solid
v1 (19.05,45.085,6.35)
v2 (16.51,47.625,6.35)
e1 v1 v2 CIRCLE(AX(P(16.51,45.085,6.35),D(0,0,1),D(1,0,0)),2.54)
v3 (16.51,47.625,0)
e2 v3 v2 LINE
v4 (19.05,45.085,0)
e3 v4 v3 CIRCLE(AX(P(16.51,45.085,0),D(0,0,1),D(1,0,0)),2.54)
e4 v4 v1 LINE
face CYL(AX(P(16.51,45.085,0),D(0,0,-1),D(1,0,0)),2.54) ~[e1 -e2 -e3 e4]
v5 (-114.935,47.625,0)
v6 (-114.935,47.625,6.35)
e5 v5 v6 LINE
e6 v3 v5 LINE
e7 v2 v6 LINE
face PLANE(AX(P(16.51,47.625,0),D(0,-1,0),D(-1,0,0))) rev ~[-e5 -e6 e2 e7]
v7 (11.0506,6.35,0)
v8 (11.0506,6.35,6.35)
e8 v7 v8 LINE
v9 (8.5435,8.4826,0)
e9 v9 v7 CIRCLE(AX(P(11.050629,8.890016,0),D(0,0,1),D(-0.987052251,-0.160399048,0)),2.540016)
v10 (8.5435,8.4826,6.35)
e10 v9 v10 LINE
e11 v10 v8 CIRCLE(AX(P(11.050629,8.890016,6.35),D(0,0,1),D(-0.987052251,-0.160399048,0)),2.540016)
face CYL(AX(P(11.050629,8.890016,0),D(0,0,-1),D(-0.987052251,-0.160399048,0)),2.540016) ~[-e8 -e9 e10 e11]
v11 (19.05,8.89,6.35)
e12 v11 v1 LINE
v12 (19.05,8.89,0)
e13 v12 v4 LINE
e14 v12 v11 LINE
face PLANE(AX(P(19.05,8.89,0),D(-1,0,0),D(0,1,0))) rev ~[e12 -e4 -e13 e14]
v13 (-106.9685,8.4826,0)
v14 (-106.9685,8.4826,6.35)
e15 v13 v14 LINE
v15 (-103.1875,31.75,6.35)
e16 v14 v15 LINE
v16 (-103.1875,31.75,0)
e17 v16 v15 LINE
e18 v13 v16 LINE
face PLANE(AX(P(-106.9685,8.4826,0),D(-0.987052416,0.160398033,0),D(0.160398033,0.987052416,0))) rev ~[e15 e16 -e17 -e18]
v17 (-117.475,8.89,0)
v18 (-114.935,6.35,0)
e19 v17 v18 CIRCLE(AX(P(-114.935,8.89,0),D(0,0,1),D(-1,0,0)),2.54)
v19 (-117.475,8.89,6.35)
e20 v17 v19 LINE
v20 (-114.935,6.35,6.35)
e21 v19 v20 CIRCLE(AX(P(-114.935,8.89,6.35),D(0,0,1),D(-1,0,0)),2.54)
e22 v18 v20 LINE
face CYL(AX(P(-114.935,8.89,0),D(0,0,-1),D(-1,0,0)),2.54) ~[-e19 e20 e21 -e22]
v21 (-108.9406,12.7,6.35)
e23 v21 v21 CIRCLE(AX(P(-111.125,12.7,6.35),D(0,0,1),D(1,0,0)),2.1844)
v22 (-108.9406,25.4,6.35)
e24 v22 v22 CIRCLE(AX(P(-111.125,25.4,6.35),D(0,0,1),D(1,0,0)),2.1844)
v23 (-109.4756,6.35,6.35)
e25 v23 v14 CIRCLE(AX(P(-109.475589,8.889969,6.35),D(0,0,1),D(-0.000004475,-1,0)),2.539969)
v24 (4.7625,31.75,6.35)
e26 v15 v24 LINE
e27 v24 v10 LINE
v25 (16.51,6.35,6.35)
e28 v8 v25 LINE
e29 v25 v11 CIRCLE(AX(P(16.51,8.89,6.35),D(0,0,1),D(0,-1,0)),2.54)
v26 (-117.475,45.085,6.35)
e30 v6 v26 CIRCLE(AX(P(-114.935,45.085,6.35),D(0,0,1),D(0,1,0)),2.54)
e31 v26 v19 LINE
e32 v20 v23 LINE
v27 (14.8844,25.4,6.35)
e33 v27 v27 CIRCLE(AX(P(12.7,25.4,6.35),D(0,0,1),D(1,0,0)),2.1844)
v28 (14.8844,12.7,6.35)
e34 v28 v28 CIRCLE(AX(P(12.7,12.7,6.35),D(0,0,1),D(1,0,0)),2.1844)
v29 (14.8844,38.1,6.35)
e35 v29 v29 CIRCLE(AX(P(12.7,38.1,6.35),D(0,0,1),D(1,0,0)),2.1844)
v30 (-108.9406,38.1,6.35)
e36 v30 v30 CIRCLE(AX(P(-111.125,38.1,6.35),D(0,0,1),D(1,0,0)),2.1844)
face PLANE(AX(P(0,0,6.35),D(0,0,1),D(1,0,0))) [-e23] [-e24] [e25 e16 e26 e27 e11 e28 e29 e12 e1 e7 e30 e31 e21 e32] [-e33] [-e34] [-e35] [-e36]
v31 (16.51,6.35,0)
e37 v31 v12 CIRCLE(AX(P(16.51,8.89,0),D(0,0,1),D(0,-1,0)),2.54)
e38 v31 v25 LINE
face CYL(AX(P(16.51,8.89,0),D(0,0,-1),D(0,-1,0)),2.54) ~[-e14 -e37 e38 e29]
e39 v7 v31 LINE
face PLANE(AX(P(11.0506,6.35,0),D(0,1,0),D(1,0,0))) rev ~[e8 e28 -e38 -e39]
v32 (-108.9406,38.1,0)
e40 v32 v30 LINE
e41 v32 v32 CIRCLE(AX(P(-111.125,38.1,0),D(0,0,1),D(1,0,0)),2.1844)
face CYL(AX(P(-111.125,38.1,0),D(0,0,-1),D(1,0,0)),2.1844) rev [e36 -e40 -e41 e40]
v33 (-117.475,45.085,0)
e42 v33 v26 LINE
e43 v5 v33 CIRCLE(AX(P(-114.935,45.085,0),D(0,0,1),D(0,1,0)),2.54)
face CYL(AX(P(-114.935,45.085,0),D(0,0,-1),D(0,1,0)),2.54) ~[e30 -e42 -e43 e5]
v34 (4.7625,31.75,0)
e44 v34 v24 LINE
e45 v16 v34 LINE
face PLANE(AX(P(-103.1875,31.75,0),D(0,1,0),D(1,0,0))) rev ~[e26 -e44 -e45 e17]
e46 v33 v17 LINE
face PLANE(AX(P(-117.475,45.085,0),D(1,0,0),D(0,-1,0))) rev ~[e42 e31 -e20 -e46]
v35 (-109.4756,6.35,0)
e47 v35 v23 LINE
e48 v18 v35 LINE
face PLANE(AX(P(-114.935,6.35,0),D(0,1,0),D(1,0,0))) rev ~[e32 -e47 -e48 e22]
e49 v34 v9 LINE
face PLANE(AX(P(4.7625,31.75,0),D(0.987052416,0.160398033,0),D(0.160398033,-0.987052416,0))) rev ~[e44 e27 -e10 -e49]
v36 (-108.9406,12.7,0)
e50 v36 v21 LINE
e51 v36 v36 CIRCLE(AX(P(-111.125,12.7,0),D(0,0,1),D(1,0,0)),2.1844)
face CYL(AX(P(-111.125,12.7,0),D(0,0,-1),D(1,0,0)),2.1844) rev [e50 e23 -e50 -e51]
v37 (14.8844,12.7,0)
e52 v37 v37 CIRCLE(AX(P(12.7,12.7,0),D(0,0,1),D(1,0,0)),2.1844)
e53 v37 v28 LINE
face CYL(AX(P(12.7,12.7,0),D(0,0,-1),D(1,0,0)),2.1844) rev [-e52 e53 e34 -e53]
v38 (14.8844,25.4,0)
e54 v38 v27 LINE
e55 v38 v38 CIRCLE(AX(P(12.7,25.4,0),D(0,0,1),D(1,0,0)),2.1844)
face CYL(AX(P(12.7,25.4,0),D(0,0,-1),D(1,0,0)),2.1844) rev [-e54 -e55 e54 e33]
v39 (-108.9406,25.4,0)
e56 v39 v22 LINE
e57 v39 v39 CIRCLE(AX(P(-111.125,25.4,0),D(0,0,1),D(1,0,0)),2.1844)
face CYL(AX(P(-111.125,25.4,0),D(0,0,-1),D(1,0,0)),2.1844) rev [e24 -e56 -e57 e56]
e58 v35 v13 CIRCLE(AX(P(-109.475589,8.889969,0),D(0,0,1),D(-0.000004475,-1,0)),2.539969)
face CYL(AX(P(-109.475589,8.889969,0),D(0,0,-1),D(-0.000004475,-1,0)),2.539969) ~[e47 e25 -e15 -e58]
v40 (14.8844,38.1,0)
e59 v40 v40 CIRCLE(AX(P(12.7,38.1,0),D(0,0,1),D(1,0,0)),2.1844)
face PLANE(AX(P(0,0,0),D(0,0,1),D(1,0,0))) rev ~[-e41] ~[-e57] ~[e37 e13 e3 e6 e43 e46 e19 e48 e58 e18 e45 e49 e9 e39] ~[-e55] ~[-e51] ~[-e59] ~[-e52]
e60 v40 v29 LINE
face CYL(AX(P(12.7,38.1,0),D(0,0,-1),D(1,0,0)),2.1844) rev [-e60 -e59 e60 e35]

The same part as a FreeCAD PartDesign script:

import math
import FreeCAD as App
import Part
import Sketcher
Q = App.Units.Quantity

doc = App.newDocument("Part")
body = doc.addObject("PartDesign::Body", "Body")

# Sketch on XY plane
sketch1 = body.newObject("Sketcher::SketchObject", "Sketch")
sketch1.AttachmentSupport = (doc.getObject("XY_Plane"), [""])
sketch1.MapMode = "FlatFace"
sketch1.addGeometry([
    Part.ArcOfCircle(Part.Circle(App.Vector(-114.9, 45.1, 0), App.Vector(0, 0, 1), 2.5), math.radians(90), math.radians(180)),  # 0
    Part.LineSegment(App.Vector(-117.5, 45.1, 0), App.Vector(-117.5, 8.9, 0)),  # 1
    Part.ArcOfCircle(Part.Circle(App.Vector(-114.9, 8.9, 0), App.Vector(0, 0, 1), 2.5), math.radians(180), math.radians(270)),  # 2
    Part.LineSegment(App.Vector(-114.9, 6.3, 0), App.Vector(-109.5, 6.3, 0)),  # 3
    Part.ArcOfCircle(Part.Circle(App.Vector(-109.5, 8.9, 0), App.Vector(0, 0, 1), 2.5), math.radians(-90), math.radians(-9)),  # 4
    Part.LineSegment(App.Vector(-107, 8.5, 0), App.Vector(-103.2, 31.8, 0)),  # 5
    Part.LineSegment(App.Vector(-103.2, 31.8, 0), App.Vector(4.8, 31.8, 0)),  # 6
    Part.LineSegment(App.Vector(4.8, 31.8, 0), App.Vector(8.5, 8.5, 0)),  # 7
    Part.ArcOfCircle(Part.Circle(App.Vector(11.1, 8.9, 0), App.Vector(0, 0, 1), 2.5), math.radians(-171), math.radians(-90)),  # 8
    Part.LineSegment(App.Vector(11.1, 6.3, 0), App.Vector(16.5, 6.3, 0)),  # 9
    Part.ArcOfCircle(Part.Circle(App.Vector(16.5, 8.9, 0), App.Vector(0, 0, 1), 2.5), math.radians(-90), math.radians(0)),  # 10
    Part.LineSegment(App.Vector(19.1, 8.9, 0), App.Vector(19.1, 45.1, 0)),  # 11
    Part.ArcOfCircle(Part.Circle(App.Vector(16.5, 45.1, 0), App.Vector(0, 0, 1), 2.5), math.radians(0), math.radians(90)),  # 12
    Part.LineSegment(App.Vector(16.5, 47.6, 0), App.Vector(-114.9, 47.6, 0)),  # 13
    Part.Circle(App.Vector(-111.1, 12.7, 0), App.Vector(0, 0, 1), 2.2),  # 14
    Part.Circle(App.Vector(-111.1, 25.4, 0), App.Vector(0, 0, 1), 2.2),  # 15
    Part.Circle(App.Vector(12.7, 12.7, 0), App.Vector(0, 0, 1), 2.2),  # 16
    Part.Circle(App.Vector(12.7, 25.4, 0), App.Vector(0, 0, 1), 2.2),  # 17
    Part.Circle(App.Vector(-111.1, 38.1, 0), App.Vector(0, 0, 1), 2.2),  # 18
    Part.Circle(App.Vector(12.7, 38.1, 0), App.Vector(0, 0, 1), 2.2),  # 19
], False)
sketch1.addConstraint([
    Sketcher.Constraint("Tangent", 0, 2, 1, 1),
    Sketcher.Constraint("Tangent", 1, 2, 2, 1),
    Sketcher.Constraint("Tangent", 2, 2, 3, 1),
    Sketcher.Constraint("Tangent", 3, 2, 4, 1),
    Sketcher.Constraint("Tangent", 4, 2, 5, 1),
    Sketcher.Constraint("Coincident", 5, 2, 6, 1),
    Sketcher.Constraint("Coincident", 6, 2, 7, 1),
    Sketcher.Constraint("Tangent", 7, 2, 8, 1),
    Sketcher.Constraint("Tangent", 8, 2, 9, 1),
    Sketcher.Constraint("Tangent", 9, 2, 10, 1),
    Sketcher.Constraint("Tangent", 10, 2, 11, 1),
    Sketcher.Constraint("Tangent", 11, 2, 12, 1),
    Sketcher.Constraint("Tangent", 12, 2, 13, 1),
    Sketcher.Constraint("Tangent", 13, 2, 0, 1),
    Sketcher.Constraint("Vertical", 1),
    Sketcher.Constraint("Horizontal", 3),
    Sketcher.Constraint("Horizontal", 6),
    Sketcher.Constraint("Horizontal", 9),
    Sketcher.Constraint("Vertical", 11),
    Sketcher.Constraint("Horizontal", 13),
    Sketcher.Constraint("Equal", 0, 2),
    Sketcher.Constraint("Equal", 2, 4),
    Sketcher.Constraint("Equal", 4, 8),
    Sketcher.Constraint("Equal", 8, 10),
    Sketcher.Constraint("Equal", 10, 12),
    Sketcher.Constraint("Equal", 14, 15),
    Sketcher.Constraint("Equal", 15, 16),
    Sketcher.Constraint("Equal", 16, 17),
    Sketcher.Constraint("Equal", 17, 18),
    Sketcher.Constraint("Equal", 18, 19),
    Sketcher.Constraint("Horizontal", 4, 3, 8, 3),
    Sketcher.Constraint("Horizontal", 14, 3, 16, 3),
    Sketcher.Constraint("Horizontal", 15, 3, 17, 3),
    Sketcher.Constraint("Horizontal", 18, 3, 19, 3),
    Sketcher.Constraint("Horizontal", 4, 2, 7, 2),
    Sketcher.Constraint("Vertical", 14, 3, 15, 3),
    Sketcher.Constraint("Vertical", 16, 3, 17, 3),
    Sketcher.Constraint("Vertical", 15, 3, 18, 3),
    Sketcher.Constraint("Vertical", 17, 3, 19, 3),
    Sketcher.Constraint("Equal", 3, 9),
    Sketcher.Constraint("Radius", 0, Q("0.1 in")),
    Sketcher.Constraint("DistanceX", 6, 1, 6, 2, Q("4.25 in")),
    Sketcher.Constraint("DistanceY", -1, 1, 2, 2, Q("0.25 in")),
    Sketcher.Constraint("DistanceX", 0, 2, 18, 3, Q("0.25 in")),
    Sketcher.Constraint("DistanceY", 2, 2, 14, 3, Q("0.25 in")),
    Sketcher.Constraint("DistanceY", 15, 3, 5, 2, Q("0.25 in")),
    Sketcher.Constraint("DistanceY", 5, 2, 18, 3, Q("0.25 in")),
    Sketcher.Constraint("DistanceX", 16, 3, 10, 2, Q("0.25 in")),
    Sketcher.Constraint("Diameter", 14, Q("0.172 in")),
    Sketcher.Constraint("DistanceY", -1, 1, 15, 3, Q("1 in")),
    Sketcher.Constraint("DistanceY", 19, 3, 12, 2, Q("0.375 in")),
    Sketcher.Constraint("DistanceX", -1, 1, 16, 3, Q("0.5 in")),
    Sketcher.Constraint("DistanceX", 13, 2, 13, 1, Q("5.175 in")),
    Sketcher.Constraint("Angle", 5, Q("80.77 deg")),
])
pad1 = body.newObject("PartDesign::Pad", "Pad")
pad1.Profile = sketch1
pad1.Length = Q("0.25 in")

doc.recompute()
